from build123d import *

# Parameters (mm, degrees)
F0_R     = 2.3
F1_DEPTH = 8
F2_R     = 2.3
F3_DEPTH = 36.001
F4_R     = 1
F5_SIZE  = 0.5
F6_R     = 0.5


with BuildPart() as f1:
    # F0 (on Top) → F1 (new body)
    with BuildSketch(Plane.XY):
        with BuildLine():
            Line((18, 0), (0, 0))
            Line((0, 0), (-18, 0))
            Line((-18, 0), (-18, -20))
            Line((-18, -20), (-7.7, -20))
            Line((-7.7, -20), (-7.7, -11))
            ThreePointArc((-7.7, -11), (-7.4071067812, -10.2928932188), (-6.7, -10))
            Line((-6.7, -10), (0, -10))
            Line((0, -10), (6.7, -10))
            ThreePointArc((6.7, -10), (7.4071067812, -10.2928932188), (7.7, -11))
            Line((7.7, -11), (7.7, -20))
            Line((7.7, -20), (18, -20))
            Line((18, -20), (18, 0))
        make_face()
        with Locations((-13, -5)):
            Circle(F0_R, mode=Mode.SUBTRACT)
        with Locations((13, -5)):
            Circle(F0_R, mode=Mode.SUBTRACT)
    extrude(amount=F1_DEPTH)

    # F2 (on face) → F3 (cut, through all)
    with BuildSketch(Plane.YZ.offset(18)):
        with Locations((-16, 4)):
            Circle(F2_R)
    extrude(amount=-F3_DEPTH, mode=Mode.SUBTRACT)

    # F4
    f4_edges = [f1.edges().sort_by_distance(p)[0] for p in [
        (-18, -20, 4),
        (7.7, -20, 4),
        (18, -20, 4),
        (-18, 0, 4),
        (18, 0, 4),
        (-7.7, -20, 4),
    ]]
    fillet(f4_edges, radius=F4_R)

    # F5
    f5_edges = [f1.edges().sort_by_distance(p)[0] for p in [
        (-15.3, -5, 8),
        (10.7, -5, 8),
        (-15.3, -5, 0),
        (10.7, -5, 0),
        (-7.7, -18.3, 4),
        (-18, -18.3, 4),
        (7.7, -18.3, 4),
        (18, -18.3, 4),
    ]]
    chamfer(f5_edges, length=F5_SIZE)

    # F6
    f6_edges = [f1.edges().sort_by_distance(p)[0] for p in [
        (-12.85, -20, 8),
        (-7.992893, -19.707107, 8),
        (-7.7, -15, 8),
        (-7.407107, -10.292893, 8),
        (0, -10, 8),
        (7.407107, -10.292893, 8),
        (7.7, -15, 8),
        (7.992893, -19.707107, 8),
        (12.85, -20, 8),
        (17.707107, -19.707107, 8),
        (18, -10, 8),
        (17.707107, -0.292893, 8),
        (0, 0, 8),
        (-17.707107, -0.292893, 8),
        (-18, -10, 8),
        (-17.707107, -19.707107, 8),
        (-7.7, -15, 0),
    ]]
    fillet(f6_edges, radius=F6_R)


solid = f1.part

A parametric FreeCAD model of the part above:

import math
import FreeCAD as App
import Part
import Sketcher
from FreeCAD import Vector
Q = App.Units.Quantity


def edges_at(feature, points):
    """Names of the edges that pass closest to the given points."""
    edges = feature.Shape.Edges
    near = lambda p: min(range(len(edges)), key=lambda i: edges[i].distToShape(Part.Vertex(*p))[0])
    return sorted({f"Edge{near(p) + 1}" for p in points})

doc = App.newDocument("Part")
params = doc.addObject("Spreadsheet::Sheet", "Params")
for row, (alias, value) in enumerate([
    ("sketch1_radius", "1 mm"),
    ("sketch1_diameter", "4.6 mm"),
    ("sketch1_width", "36 mm"),
    ("sketch1_height", "20 mm"),
    ("sketch1_height2", "9 mm"),
    ("pad1_length", "8 mm"),
    ("sketch2_diameter", "4.6 mm"),
    ("fillet_radius", "1 mm"),
    ("chamfer_size", "0.5 mm"),
    ("fillet2_radius", "0.5 mm"),
], start=1):
    params.set(f"A{row}", alias)
    params.set(f"B{row}", "=" + value)
    params.setAlias(f"B{row}", alias)

body = doc.addObject("PartDesign::Body", "Body")

sketch1 = body.newObject("Sketcher::SketchObject", "Sketch")
sketch1.AttachmentSupport = (doc.getObject("XY_Plane"), [""])
sketch1.MapMode = "FlatFace"
sketch1.addGeometry([
    Part.LineSegment(Vector(18, 0, 0), Vector(-18, 0, 0)),
    Part.LineSegment(Vector(-18, 0, 0), Vector(-18, -20, 0)),
    Part.LineSegment(Vector(-18, -20, 0), Vector(-7.7, -20, 0)),
    Part.LineSegment(Vector(-7.7, -20, 0), Vector(-7.7, -11, 0)),
    Part.ArcOfCircle(Part.Circle(Vector(-6.7, -11, 0), Vector(0, 0, 1), 1), math.radians(90), math.radians(180)),
    Part.LineSegment(Vector(-6.7, -10, 0), Vector(6.7, -10, 0)),
    Part.ArcOfCircle(Part.Circle(Vector(6.7, -11, 0), Vector(0, 0, 1), 1), math.radians(0), math.radians(90)),
    Part.LineSegment(Vector(7.7, -11, 0), Vector(7.7, -20, 0)),
    Part.LineSegment(Vector(7.7, -20, 0), Vector(18, -20, 0)),
    Part.LineSegment(Vector(18, -20, 0), Vector(18, 0, 0)),
    Part.Circle(Vector(-13, -5, 0), Vector(0, 0, 1), 2.3),
    Part.Circle(Vector(13, -5, 0), Vector(0, 0, 1), 2.3),
], False)
sketch1.addConstraint([
    Sketcher.Constraint("Coincident", 0, 2, 1, 1),
    Sketcher.Constraint("Coincident", 1, 2, 2, 1),
    Sketcher.Constraint("Coincident", 2, 2, 3, 1),
    Sketcher.Constraint("Tangent", 3, 2, 4, 2),
    Sketcher.Constraint("Tangent", 4, 1, 5, 1),
    Sketcher.Constraint("Tangent", 5, 2, 6, 2),
    Sketcher.Constraint("Tangent", 6, 1, 7, 1),
    Sketcher.Constraint("Coincident", 7, 2, 8, 1),
    Sketcher.Constraint("Coincident", 8, 2, 9, 1),
    Sketcher.Constraint("Coincident", 9, 2, 0, 1),
    Sketcher.Constraint("Horizontal", 0),
    Sketcher.Constraint("Vertical", 1),
    Sketcher.Constraint("Horizontal", 2),
    Sketcher.Constraint("Vertical", 3),
    Sketcher.Constraint("Horizontal", 5),
    Sketcher.Constraint("Vertical", 7),
    Sketcher.Constraint("Horizontal", 8),
    Sketcher.Constraint("Vertical", 9),
    Sketcher.Constraint("Equal", 4, 6),
    Sketcher.Constraint("Equal", 10, 11),
    Sketcher.Constraint("Symmetric", 0, 2, 9, 2, -1, 1),
    Sketcher.Constraint("Symmetric", 10, 3, 11, 3, -2),
    Sketcher.Constraint("Symmetric", 2, 2, 7, 2, -2),
    Sketcher.Constraint("Radius", 4, Q("1 mm")),
    Sketcher.Constraint("Diameter", 10, Q("4.6 mm")),
    Sketcher.Constraint("DistanceX", 0, 2, 0, 1, Q("36 mm")),
    Sketcher.Constraint("DistanceY", 1, 2, 1, 1, Q("20 mm")),
    Sketcher.Constraint("DistanceY", 3, 1, 3, 2, Q("9 mm")),
    Sketcher.Constraint("DistanceX", 2, 1, 2, 2, Q("10.3 mm")),
    Sketcher.Constraint("DistanceX", 10, 3, -1, 1, Q("13 mm")),
    Sketcher.Constraint("DistanceY", 10, 3, -1, 1, Q("5 mm")),
])
sketch1.setExpression("Constraints[23]", "Params.sketch1_radius")
sketch1.setExpression("Constraints[24]", "Params.sketch1_diameter")
sketch1.setExpression("Constraints[25]", "Params.sketch1_width")
sketch1.setExpression("Constraints[26]", "Params.sketch1_height")
sketch1.setExpression("Constraints[27]", "Params.sketch1_height2")
pad1 = body.newObject("PartDesign::Pad", "Pad")
pad1.Profile = sketch1
pad1.setExpression("Length", "Params.pad1_length")

sketch2 = body.newObject("Sketcher::SketchObject", "Sketch001")
sketch2.AttachmentSupport = (doc.getObject("YZ_Plane"), [""])
sketch2.MapMode = "FlatFace"
sketch2.AttachmentOffset = App.Placement(Vector(0, 0, 18), App.Rotation())
sketch2.addGeometry(Part.Circle(Vector(-16, 4, 0), Vector(0, 0, 1), 2.3), False)
sketch2.addConstraint([
    Sketcher.Constraint("Diameter", 0, Q("4.6 mm")),
    Sketcher.Constraint("DistanceX", 0, 3, -1, 1, Q("16 mm")),
    Sketcher.Constraint("DistanceY", -1, 1, 0, 3, Q("4 mm")),
])
sketch2.setExpression("Constraints[0]", "Params.sketch2_diameter")
pocket1 = body.newObject("PartDesign::Pocket", "Pocket")
pocket1.Profile = sketch2
pocket1.Type = "ThroughAll"
doc.recompute()

fillet = body.newObject("PartDesign::Fillet", "Fillet")
fillet.Base = (pocket1, edges_at(pocket1, [
    (-18, -20, 4),
    (7.7, -20, 4),
    (18, -20, 4),
    (-18, 0, 4),
    (18, 0, 4),
    (-7.7, -20, 4),
]))
fillet.setExpression("Radius", "Params.fillet_radius")
doc.recompute()

chamfer = body.newObject("PartDesign::Chamfer", "Chamfer")
chamfer.Base = (fillet, edges_at(fillet, [
    (-15.3, -5, 8),
    (10.7, -5, 8),
    (-15.3, -5, 0),
    (10.7, -5, 0),
    (-7.7, -18.3, 4),
    (-18, -18.3, 4),
    (7.7, -18.3, 4),
    (18, -18.3, 4),
]))
chamfer.setExpression("Size", "Params.chamfer_size")
doc.recompute()

fillet2 = body.newObject("PartDesign::Fillet", "Fillet001")
fillet2.Base = (chamfer, edges_at(chamfer, [
    (-12.85, -20, 8),
    (-7.993, -19.707, 8),
    (-7.7, -15, 8),
    (-7.407, -10.293, 8),
    (0, -10, 8),
    (7.407, -10.293, 8),
    (7.7, -15, 8),
    (7.993, -19.707, 8),
    (12.85, -20, 8),
    (17.707, -19.707, 8),
    (18, -10, 8),
    (17.707, -0.293, 8),
    (0, 0, 8),
    (-17.707, -0.293, 8),
    (-18, -10, 8),
    (-17.707, -19.707, 8),
    (-7.7, -15, 0),
]))
fillet2.setExpression("Radius", "Params.fillet2_radius")

doc.recompute()
